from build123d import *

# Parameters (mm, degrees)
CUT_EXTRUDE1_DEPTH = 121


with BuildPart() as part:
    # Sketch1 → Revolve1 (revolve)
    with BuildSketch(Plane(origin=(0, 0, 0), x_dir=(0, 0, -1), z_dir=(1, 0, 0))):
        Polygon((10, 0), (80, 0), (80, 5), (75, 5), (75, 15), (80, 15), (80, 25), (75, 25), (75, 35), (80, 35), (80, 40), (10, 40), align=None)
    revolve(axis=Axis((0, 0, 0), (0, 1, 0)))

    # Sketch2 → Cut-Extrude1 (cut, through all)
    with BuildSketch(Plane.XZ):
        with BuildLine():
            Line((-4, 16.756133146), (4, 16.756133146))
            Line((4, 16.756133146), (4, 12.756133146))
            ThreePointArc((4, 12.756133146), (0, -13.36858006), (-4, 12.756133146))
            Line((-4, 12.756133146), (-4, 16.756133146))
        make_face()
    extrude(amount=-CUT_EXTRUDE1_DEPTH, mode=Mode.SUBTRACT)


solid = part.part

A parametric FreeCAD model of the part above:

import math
import FreeCAD as App
import Part
import Sketcher

V = App.Vector
Q = App.Units.Quantity

doc = App.newDocument("Part")
params = doc.addObject("Spreadsheet::Sheet", "Params")
for row, (alias, value) in enumerate([
    ("sketch1_width", "5 mm"),
    ("sketch1_width2", "10 mm"),
    ("sketch1_height", "70 mm"),
    ("revolution_angle", "360 deg"),
    ("sketch2_width", "8 mm"),
    ("sketch2_height", "4 mm"),
], start=1):
    params.set(f"A{row}", alias)
    params.set(f"B{row}", "=" + value)
    params.setAlias(f"B{row}", alias)

body = doc.addObject("PartDesign::Body", "Body")

sketch1 = body.newObject("Sketcher::SketchObject", "Sketch")
sketch1.AttachmentSupport = (doc.getObject("YZ_Plane"), [""])
sketch1.MapMode = "FlatFace"
sketch1.addGeometry([
    Part.LineSegment(V(0, -10, 0), V(0, -80, 0)),
    Part.LineSegment(V(0, -80, 0), V(5, -80, 0)),
    Part.LineSegment(V(5, -80, 0), V(5, -75, 0)),
    Part.LineSegment(V(5, -75, 0), V(15, -75, 0)),
    Part.LineSegment(V(15, -75, 0), V(15, -80, 0)),
    Part.LineSegment(V(15, -80, 0), V(25, -80, 0)),
    Part.LineSegment(V(25, -80, 0), V(25, -75, 0)),
    Part.LineSegment(V(25, -75, 0), V(35, -75, 0)),
    Part.LineSegment(V(35, -75, 0), V(35, -80, 0)),
    Part.LineSegment(V(35, -80, 0), V(40, -80, 0)),
    Part.LineSegment(V(40, -80, 0), V(40, -10, 0)),
    Part.LineSegment(V(40, -10, 0), V(0, -10, 0)),
], False)
sketch1.addConstraint([
    Sketcher.Constraint("Coincident", 0, 2, 1, 1),
    Sketcher.Constraint("Coincident", 1, 2, 2, 1),
    Sketcher.Constraint("Coincident", 2, 2, 3, 1),
    Sketcher.Constraint("Coincident", 3, 2, 4, 1),
    Sketcher.Constraint("Coincident", 4, 2, 5, 1),
    Sketcher.Constraint("Coincident", 5, 2, 6, 1),
    Sketcher.Constraint("Coincident", 6, 2, 7, 1),
    Sketcher.Constraint("Coincident", 7, 2, 8, 1),
    Sketcher.Constraint("Coincident", 8, 2, 9, 1),
    Sketcher.Constraint("Coincident", 9, 2, 10, 1),
    Sketcher.Constraint("Coincident", 10, 2, 11, 1),
    Sketcher.Constraint("Coincident", 11, 2, 0, 1),
    Sketcher.Constraint("Vertical", 0),
    Sketcher.Constraint("Horizontal", 1),
    Sketcher.Constraint("Vertical", 2),
    Sketcher.Constraint("Horizontal", 3),
    Sketcher.Constraint("Vertical", 4),
    Sketcher.Constraint("Horizontal", 5),
    Sketcher.Constraint("Vertical", 6),
    Sketcher.Constraint("Horizontal", 7),
    Sketcher.Constraint("Vertical", 8),
    Sketcher.Constraint("Horizontal", 9),
    Sketcher.Constraint("Vertical", 10),
    Sketcher.Constraint("Horizontal", 11),
    Sketcher.Constraint("PointOnObject", 0, 2, -2),
    Sketcher.Constraint("Horizontal", 1, 2, 4, 2),
    Sketcher.Constraint("Horizontal", 3, 2, 6, 2),
    Sketcher.Constraint("Horizontal", 5, 2, 8, 2),
    Sketcher.Constraint("Equal", 3, 5),
    Sketcher.Constraint("Equal", 5, 7),
    Sketcher.Constraint("Equal", 1, 9),
    Sketcher.Constraint("Equal", 9, 2),
    Sketcher.Constraint("DistanceX", 1, 1, 1, 2, Q("5 mm")),
    Sketcher.Constraint("DistanceX", 3, 1, 3, 2, Q("10 mm")),
    Sketcher.Constraint("DistanceY", 0, 2, 0, 1, Q("70 mm")),
    Sketcher.Constraint("DistanceY", 0, 2, -1, 1, Q("80 mm")),
])
sketch1.setExpression("Constraints[32]", "Params.sketch1_width")
sketch1.setExpression("Constraints[33]", "Params.sketch1_width2")
sketch1.setExpression("Constraints[34]", "Params.sketch1_height")
revolution = body.newObject("PartDesign::Revolution", "Revolution")
revolution.Profile = sketch1
revolution.ReferenceAxis = (sketch1, ["H_Axis"])
revolution.setExpression("Angle", "Params.revolution_angle")

sketch2 = body.newObject("Sketcher::SketchObject", "Sketch001")
sketch2.AttachmentSupport = (doc.getObject("XZ_Plane"), [""])
sketch2.MapMode = "FlatFace"
sketch2.addGeometry([
    Part.LineSegment(V(4, 16.756133, 0), V(-4, 16.756133, 0)),
    Part.LineSegment(V(-4, 16.756133, 0), V(-4, 12.756133, 0)),
    Part.ArcOfCircle(Part.Circle(V(0, 0, 0), V(0, 0, 1), 13.36858), math.radians(107.410102), math.radians(432.589898)),
    Part.LineSegment(V(4, 12.756133, 0), V(4, 16.756133, 0)),
], False)
sketch2.addConstraint([
    Sketcher.Constraint("Coincident", 0, 2, 1, 1),
    Sketcher.Constraint("Coincident", 1, 2, 2, 1),
    Sketcher.Constraint("Coincident", 2, 2, 3, 1),
    Sketcher.Constraint("Coincident", 3, 2, 0, 1),
    Sketcher.Constraint("Horizontal", 0),
    Sketcher.Constraint("Vertical", 1),
    Sketcher.Constraint("Vertical", 3),
    Sketcher.Constraint("Coincident", 2, 3, -1, 1),
    Sketcher.Constraint("Horizontal", 1, 2, 2, 2),
    Sketcher.Constraint("DistanceX", 0, 2, 0, 1, Q("8 mm")),
    Sketcher.Constraint("DistanceY", 1, 2, 1, 1, Q("4 mm")),
    Sketcher.Constraint("Radius", 2, Q("13.36858 mm")),
])
sketch2.setExpression("Constraints[9]", "Params.sketch2_width")
sketch2.setExpression("Constraints[10]", "Params.sketch2_height")
pocket1 = body.newObject("PartDesign::Pocket", "Pocket")
pocket1.Profile = sketch2
pocket1.Type = "ThroughAll"

doc.recompute()
